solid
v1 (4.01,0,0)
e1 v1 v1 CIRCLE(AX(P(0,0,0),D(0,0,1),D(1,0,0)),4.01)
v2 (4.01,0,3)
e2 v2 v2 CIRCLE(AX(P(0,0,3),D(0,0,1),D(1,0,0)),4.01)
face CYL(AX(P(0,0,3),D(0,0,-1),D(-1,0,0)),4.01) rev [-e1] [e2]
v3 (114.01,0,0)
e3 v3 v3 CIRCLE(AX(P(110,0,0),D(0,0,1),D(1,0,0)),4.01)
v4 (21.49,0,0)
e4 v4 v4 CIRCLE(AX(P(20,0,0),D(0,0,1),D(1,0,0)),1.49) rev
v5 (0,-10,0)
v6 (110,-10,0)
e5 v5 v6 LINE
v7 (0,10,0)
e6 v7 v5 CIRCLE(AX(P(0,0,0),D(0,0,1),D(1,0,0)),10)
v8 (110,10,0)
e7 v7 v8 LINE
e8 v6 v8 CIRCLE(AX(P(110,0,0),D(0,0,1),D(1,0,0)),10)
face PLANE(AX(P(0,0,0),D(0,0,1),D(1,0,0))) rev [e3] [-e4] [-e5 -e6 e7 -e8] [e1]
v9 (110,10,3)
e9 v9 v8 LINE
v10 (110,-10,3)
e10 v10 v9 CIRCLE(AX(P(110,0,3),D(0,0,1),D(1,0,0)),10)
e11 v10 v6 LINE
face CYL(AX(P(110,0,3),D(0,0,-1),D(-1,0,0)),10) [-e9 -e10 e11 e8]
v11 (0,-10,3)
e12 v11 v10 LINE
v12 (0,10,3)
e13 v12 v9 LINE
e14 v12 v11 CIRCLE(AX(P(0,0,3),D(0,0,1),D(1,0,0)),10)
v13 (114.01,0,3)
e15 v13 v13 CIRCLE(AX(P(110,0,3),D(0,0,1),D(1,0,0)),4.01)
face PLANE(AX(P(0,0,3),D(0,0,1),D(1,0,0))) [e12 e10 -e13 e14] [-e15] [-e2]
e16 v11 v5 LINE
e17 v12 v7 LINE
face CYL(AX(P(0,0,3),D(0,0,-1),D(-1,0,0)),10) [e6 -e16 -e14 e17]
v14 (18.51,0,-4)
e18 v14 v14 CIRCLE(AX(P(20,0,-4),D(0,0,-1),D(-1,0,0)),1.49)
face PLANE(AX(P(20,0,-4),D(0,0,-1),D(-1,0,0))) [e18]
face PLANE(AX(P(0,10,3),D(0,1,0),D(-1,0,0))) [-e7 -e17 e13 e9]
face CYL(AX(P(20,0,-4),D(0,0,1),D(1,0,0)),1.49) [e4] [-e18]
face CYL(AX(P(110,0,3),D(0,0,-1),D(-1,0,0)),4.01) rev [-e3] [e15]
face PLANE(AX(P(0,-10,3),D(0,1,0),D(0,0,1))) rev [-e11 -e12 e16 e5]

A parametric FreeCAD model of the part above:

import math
import FreeCAD as App
import Part
import Sketcher
from FreeCAD import Vector

doc = App.newDocument("Part")
body = doc.addObject("PartDesign::Body", "Body")

# Sketch on XY plane
sketch1 = body.newObject("Sketcher::SketchObject", "Sketch")
sketch1.AttachmentSupport = (doc.getObject("XY_Plane"), [""])
sketch1.MapMode = "FlatFace"
sketch1.addGeometry([
    Part.LineSegment(Vector(110, 10, 0), Vector(0, 10, 0)),  # 0
    Part.ArcOfCircle(Part.Circle(Vector(0, 0, 0), Vector(0, 0, 1), 10), math.radians(90), math.radians(270)),  # 1
    Part.LineSegment(Vector(0, -10, 0), Vector(110, -10, 0)),  # 2
    Part.ArcOfCircle(Part.Circle(Vector(110, 0, 0), Vector(0, 0, 1), 10), math.radians(-90), math.radians(90)),  # 3
    Part.Circle(Vector(0, 0, 0), Vector(0, 0, 1), 4),  # 4
    Part.Circle(Vector(110, 0, 0), Vector(0, 0, 1), 4),  # 5
], False)
sketch1.addConstraint([
    Sketcher.Constraint("Tangent", 0, 2, 1, 1),
    Sketcher.Constraint("Tangent", 1, 2, 2, 1),
    Sketcher.Constraint("Tangent", 2, 2, 3, 1),
    Sketcher.Constraint("Tangent", 3, 2, 0, 1),
    Sketcher.Constraint("Horizontal", 0),
    Sketcher.Constraint("Horizontal", 2),
    Sketcher.Constraint("Coincident", 1, 3, -1, 1),
    Sketcher.Constraint("Coincident", 4, 3, -1, 1),
    Sketcher.Constraint("Coincident", 5, 3, 3, 3),
    Sketcher.Constraint("Equal", 4, 5),
    Sketcher.Constraint("Radius", 1, 10.0),
    Sketcher.Constraint("Diameter", 4, 8.02),
    Sketcher.Constraint("DistanceX", 0, 2, 0, 1, 110.0),
])
pad1 = body.newObject("PartDesign::Pad", "Pad")
pad1.Profile = sketch1
pad1.Length = 3

# Sketch on XY plane
sketch2 = body.newObject("Sketcher::SketchObject", "Sketch001")
sketch2.AttachmentSupport = (doc.getObject("XY_Plane"), [""])
sketch2.MapMode = "FlatFace"
sketch2.addGeometry(Part.Circle(Vector(20, 0, 0), Vector(0, 0, 1), 1.5), False)
sketch2.addConstraint([
    Sketcher.Constraint("PointOnObject", 0, 3, -1),
    Sketcher.Constraint("Diameter", 0, 2.98),
    Sketcher.Constraint("DistanceX", -1, 1, 0, 3, 20.0),
])
pad2 = body.newObject("PartDesign::Pad", "Pad001")
pad2.Profile = sketch2
pad2.Length = 4
pad2.Reversed = True

doc.recompute()
